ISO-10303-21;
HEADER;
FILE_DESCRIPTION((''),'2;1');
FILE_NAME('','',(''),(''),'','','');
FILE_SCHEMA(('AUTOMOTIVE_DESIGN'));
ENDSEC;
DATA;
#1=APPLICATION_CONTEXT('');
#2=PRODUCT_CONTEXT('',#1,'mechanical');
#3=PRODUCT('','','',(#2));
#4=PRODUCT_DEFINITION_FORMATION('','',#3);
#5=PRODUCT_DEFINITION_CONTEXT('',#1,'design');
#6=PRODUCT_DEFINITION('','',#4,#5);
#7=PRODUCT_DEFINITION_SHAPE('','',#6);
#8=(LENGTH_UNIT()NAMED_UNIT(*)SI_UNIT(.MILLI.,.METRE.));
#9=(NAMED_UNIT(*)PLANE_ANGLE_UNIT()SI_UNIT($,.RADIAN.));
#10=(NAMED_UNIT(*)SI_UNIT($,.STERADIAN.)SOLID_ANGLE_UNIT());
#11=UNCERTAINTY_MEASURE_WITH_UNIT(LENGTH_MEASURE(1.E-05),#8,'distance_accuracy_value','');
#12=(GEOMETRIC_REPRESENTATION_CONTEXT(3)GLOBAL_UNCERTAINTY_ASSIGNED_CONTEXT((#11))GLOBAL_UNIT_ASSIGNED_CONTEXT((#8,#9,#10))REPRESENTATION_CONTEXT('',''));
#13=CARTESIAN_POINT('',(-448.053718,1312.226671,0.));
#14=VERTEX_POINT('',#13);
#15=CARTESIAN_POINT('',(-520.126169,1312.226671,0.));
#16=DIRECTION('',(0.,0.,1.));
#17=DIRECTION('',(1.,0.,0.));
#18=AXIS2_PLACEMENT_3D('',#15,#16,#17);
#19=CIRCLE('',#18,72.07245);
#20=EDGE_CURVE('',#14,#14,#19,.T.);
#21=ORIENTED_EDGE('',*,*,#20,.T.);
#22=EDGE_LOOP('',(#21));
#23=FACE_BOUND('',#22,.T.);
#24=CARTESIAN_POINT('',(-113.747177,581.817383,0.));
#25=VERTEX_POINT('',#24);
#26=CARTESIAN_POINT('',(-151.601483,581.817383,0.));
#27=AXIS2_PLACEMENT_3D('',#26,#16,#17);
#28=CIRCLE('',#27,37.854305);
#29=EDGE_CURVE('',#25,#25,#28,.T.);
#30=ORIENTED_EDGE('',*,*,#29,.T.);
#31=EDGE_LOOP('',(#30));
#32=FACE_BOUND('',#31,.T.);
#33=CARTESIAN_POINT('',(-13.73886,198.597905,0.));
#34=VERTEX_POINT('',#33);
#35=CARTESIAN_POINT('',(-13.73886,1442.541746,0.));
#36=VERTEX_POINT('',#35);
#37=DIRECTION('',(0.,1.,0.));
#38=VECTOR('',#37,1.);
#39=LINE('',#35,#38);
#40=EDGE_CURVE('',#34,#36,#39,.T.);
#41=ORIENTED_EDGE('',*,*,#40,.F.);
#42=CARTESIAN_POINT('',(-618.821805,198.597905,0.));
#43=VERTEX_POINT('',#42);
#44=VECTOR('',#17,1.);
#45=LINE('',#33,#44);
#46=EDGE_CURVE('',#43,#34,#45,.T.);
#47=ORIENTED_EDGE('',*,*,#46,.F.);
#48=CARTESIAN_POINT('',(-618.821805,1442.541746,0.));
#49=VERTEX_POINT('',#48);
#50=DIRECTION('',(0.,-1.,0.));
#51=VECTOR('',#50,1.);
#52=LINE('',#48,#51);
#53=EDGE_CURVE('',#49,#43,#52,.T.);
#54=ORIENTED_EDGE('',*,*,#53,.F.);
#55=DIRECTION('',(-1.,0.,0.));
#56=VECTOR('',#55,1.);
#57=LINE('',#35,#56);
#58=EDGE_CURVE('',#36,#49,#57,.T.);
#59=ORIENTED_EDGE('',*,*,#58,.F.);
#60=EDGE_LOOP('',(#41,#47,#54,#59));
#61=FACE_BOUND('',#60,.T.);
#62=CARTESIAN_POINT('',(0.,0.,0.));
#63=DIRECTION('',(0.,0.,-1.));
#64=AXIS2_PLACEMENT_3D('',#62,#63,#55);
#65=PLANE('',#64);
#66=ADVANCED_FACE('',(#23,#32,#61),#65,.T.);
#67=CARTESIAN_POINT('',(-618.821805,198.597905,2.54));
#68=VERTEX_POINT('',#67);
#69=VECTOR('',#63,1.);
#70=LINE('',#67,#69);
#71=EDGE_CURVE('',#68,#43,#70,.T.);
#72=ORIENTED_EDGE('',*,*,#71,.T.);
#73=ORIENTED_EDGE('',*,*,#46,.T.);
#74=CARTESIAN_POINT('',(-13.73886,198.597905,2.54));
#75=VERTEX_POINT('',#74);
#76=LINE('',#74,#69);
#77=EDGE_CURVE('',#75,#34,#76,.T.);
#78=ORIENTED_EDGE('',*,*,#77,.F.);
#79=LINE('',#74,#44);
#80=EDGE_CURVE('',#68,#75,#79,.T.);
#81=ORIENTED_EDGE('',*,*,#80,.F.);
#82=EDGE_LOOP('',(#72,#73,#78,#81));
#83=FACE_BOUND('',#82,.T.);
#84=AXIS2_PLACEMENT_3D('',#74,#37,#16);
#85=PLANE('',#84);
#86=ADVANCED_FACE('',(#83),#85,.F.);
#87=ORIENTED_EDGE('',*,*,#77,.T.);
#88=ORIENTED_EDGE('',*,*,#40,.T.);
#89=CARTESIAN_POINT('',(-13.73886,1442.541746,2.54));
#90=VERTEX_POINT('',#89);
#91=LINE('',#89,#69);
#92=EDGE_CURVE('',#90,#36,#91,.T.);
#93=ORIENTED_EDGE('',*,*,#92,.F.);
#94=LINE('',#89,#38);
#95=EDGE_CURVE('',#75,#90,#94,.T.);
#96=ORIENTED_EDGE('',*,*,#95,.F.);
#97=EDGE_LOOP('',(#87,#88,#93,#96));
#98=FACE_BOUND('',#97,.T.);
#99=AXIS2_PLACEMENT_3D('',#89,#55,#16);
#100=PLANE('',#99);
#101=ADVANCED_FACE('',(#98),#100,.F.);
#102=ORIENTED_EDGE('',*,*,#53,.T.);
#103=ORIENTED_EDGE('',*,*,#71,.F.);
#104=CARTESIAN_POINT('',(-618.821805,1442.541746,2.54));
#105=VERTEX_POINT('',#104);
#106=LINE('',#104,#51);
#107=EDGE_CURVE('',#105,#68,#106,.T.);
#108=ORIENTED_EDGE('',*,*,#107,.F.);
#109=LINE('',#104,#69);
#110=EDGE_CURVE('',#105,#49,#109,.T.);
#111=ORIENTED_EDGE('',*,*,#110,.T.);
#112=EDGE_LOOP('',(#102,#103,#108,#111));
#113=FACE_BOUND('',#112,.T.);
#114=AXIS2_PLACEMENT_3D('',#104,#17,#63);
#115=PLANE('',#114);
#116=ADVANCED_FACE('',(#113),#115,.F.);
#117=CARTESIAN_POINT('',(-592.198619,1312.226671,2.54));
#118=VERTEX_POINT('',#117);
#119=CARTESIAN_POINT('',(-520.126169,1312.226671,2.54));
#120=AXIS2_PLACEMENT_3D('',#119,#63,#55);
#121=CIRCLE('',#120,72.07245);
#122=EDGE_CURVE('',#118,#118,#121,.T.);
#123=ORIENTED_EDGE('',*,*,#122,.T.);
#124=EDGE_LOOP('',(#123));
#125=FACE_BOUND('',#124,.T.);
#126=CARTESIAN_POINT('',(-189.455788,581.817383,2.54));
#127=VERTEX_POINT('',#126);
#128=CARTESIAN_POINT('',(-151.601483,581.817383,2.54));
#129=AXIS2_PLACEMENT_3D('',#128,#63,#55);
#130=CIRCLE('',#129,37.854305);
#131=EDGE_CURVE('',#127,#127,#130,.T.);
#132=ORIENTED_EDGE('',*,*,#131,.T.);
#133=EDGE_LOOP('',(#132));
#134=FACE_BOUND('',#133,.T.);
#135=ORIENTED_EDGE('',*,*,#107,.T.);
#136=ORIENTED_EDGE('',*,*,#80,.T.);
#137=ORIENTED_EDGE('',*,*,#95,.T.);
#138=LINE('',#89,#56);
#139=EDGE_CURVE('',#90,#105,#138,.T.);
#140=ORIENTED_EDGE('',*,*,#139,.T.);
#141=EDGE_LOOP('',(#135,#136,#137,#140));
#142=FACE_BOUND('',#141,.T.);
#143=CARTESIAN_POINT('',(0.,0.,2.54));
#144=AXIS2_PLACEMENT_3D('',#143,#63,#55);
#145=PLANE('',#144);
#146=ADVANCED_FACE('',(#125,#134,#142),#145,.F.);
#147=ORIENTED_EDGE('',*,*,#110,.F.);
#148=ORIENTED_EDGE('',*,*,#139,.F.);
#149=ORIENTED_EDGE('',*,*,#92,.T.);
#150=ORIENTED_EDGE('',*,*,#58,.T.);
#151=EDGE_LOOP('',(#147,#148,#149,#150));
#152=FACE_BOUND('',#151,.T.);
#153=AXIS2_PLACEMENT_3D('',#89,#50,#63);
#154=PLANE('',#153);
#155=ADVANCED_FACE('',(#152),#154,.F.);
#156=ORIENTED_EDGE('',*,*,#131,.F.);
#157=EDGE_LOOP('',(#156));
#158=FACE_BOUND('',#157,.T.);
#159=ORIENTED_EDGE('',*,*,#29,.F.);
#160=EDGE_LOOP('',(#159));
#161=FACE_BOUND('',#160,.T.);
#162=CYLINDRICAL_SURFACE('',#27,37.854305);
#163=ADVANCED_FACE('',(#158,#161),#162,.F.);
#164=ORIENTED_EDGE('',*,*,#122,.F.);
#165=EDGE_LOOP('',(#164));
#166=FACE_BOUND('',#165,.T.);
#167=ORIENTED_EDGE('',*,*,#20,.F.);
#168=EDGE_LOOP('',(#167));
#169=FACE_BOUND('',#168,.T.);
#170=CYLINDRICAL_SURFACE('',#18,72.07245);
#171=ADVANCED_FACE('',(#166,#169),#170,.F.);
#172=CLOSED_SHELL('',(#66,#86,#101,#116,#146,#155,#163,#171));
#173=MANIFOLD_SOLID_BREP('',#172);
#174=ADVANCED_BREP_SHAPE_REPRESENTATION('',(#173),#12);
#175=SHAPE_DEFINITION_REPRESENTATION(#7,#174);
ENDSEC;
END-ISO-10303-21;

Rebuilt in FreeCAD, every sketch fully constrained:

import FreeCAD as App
import Part
import Sketcher
from FreeCAD import Vector

doc = App.newDocument("Part")
body = doc.addObject("PartDesign::Body", "Body")

# Sketch on XY plane
sketch1 = doc.addObject("Sketcher::SketchObject", "Sketch")
body.addObject(sketch1)
sketch1.AttachmentSupport = (doc.XY_Plane, [""])
sketch1.MapMode = "FlatFace"
sketch1.addGeometry([
    Part.LineSegment(Vector(-619, 1443, 0), Vector(-619, 199, 0)),
    Part.LineSegment(Vector(-619, 199, 0), Vector(-14, 199, 0)),
    Part.LineSegment(Vector(-14, 199, 0), Vector(-14, 1443, 0)),
    Part.LineSegment(Vector(-14, 1443, 0), Vector(-619, 1443, 0)),
], False)
sketch1.addConstraint([
    Sketcher.Constraint("Coincident", 0, 2, 1, 1),
    Sketcher.Constraint("Coincident", 1, 2, 2, 1),
    Sketcher.Constraint("Coincident", 2, 2, 3, 1),
    Sketcher.Constraint("Coincident", 3, 2, 0, 1),
    Sketcher.Constraint("Vertical", 0),
    Sketcher.Constraint("Horizontal", 1),
    Sketcher.Constraint("Vertical", 2),
    Sketcher.Constraint("Horizontal", 3),
    Sketcher.Constraint("DistanceY", 0, 2, 0, 1, 1243.943841),
    Sketcher.Constraint("DistanceX", 1, 1, 1, 2, 605.082945),
    Sketcher.Constraint("DistanceX", 1, 2, -1, 1, 13.73886),
    Sketcher.Constraint("DistanceY", -1, 1, 0, 2, 198.597905),
])
pad1 = doc.addObject("PartDesign::Pad", "Pad")
body.addObject(pad1)
pad1.Profile = sketch1
pad1.Length = 2.54

# Sketch on XY plane
sketch2 = doc.addObject("Sketcher::SketchObject", "Sketch001")
body.addObject(sketch2)
sketch2.AttachmentSupport = (doc.XY_Plane, [""])
sketch2.MapMode = "FlatFace"
sketch2.AttachmentOffset = App.Placement(Vector(0, 0, 2.54), App.Rotation())
sketch2.addGeometry([
    Part.Circle(Vector(-520, 1312, 0), Vector(0, 0, 1), 72),
    Part.Circle(Vector(-152, 582, 0), Vector(0, 0, 1), 38),
], False)
sketch2.addConstraint([
    Sketcher.Constraint("Diameter", 0, 144.144901),
    Sketcher.Constraint("Diameter", 1, 75.708611),
    Sketcher.Constraint("DistanceX", 0, 3, -1, 1, 520.126169),
    Sketcher.Constraint("DistanceY", -1, 1, 0, 3, 1312.226671),
    Sketcher.Constraint("DistanceX", 1, 3, -1, 1, 151.601483),
    Sketcher.Constraint("DistanceY", -1, 1, 1, 3, 581.817383),
])
pocket1 = doc.addObject("PartDesign::Pocket", "Pocket")
body.addObject(pocket1)
pocket1.Profile = sketch2
pocket1.Type = "ThroughAll"
pocket1.Midplane = True

doc.recompute()
